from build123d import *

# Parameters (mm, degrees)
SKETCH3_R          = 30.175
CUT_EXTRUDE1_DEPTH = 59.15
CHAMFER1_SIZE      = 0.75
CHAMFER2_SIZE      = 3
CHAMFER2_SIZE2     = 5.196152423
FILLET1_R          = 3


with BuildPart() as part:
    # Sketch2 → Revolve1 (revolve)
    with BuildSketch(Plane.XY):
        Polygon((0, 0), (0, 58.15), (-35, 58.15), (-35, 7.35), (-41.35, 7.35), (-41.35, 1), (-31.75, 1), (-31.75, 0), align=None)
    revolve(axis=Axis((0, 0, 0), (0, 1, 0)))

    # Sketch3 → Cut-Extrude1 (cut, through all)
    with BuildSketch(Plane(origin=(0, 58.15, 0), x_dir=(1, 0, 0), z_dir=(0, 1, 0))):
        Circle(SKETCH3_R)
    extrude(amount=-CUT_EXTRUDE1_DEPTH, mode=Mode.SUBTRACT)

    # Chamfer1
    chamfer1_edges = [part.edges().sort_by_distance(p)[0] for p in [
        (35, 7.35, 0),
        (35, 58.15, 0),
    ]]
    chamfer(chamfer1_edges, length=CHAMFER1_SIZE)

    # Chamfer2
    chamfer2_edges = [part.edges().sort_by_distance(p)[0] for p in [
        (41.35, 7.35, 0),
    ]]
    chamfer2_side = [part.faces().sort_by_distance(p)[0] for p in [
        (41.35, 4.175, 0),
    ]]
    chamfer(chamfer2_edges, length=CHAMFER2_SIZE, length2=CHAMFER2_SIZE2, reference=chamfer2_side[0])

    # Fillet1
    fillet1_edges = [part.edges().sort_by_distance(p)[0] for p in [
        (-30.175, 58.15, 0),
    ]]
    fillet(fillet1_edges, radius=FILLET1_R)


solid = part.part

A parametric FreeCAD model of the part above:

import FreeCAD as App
import Part
import Sketcher

V = App.Vector


def edges_at(feature, points):
    """Names of the edges that pass closest to the given points."""
    edges = feature.Shape.Edges
    near = lambda p: min(range(len(edges)), key=lambda i: edges[i].distToShape(Part.Vertex(*p))[0])
    return sorted({f"Edge{near(p) + 1}" for p in points})


def add_polygon(sketch, points):
    """Adds a closed chain of lines whose ends are joined by coincident constraints."""
    first, n = sketch.GeometryCount, len(points)
    for a, b in zip(points, points[1:] + points[:1]):
        sketch.addGeometry(Part.LineSegment(App.Vector(*a, 0), App.Vector(*b, 0)), False)
    for i in range(n):
        sketch.addConstraint(Sketcher.Constraint("Coincident", first + i, 2, first + (i + 1) % n, 1))

doc = App.newDocument("Part")
params = doc.addObject("Spreadsheet::Sheet", "Params")
for row, (alias, value) in enumerate([
    ("sketch1_width", "35 mm"),
    ("sketch1_height", "1 mm"),
    ("sketch1_width2", "9.6 mm"),
    ("sketch1_height2", "50.8 mm"),
    ("sketch1_width3", "6.35 mm"),
    ("revolution_angle", "360 deg"),
    ("sketch2_diameter", "60.35 mm"),
    ("chamfer_size", "0.75 mm"),
    ("chamfer2_size", "3 mm"),
    ("chamfer2_size2", "5.196152 mm"),
    ("fillet_radius", "3 mm"),
], start=1):
    params.set(f"A{row}", alias)
    params.set(f"B{row}", "=" + value)
    params.setAlias(f"B{row}", alias)

body = doc.addObject("PartDesign::Body", "Body")

# Sketch on XY plane
sketch1 = body.newObject("Sketcher::SketchObject", "Sketch")
sketch1.AttachmentSupport = (doc.getObject("XY_Plane"), [""])
sketch1.MapMode = "FlatFace"
add_polygon(sketch1, [(0, 0), (0, 58.15), (-35, 58.15), (-35, 7.35), (-41.35, 7.35), (-41.35, 1), (-31.75, 1), (-31.75, 0)])  # lines 0-7
sketch1.addConstraint([
    Sketcher.Constraint("Vertical", 0),
    Sketcher.Constraint("Horizontal", 1),
    Sketcher.Constraint("Vertical", 2),
    Sketcher.Constraint("Horizontal", 3),
    Sketcher.Constraint("Vertical", 4),
    Sketcher.Constraint("Horizontal", 5),
    Sketcher.Constraint("Vertical", 6),
    Sketcher.Constraint("Horizontal", 7),
    Sketcher.Constraint("Coincident", 7, 2, -1, 1),
    Sketcher.Constraint("Equal", 3, 4),
    Sketcher.Constraint("DistanceX", 1, 2, 1, 1, 35.0),
    Sketcher.Constraint("DistanceY", 6, 2, 6, 1, 1.0),
    Sketcher.Constraint("DistanceX", 5, 1, 5, 2, 9.6),
    Sketcher.Constraint("DistanceY", 2, 2, 2, 1, 50.8),
    Sketcher.Constraint("DistanceX", 3, 2, 3, 1, 6.35),
])
sketch1.setExpression("Constraints[18]", "Params.sketch1_width")
sketch1.setExpression("Constraints[19]", "Params.sketch1_height")
sketch1.setExpression("Constraints[20]", "Params.sketch1_width2")
sketch1.setExpression("Constraints[21]", "Params.sketch1_height2")
sketch1.setExpression("Constraints[22]", "Params.sketch1_width3")
revolution = body.newObject("PartDesign::Revolution", "Revolution")
revolution.Profile = sketch1
revolution.ReferenceAxis = (sketch1, ["V_Axis"])
revolution.setExpression("Angle", "Params.revolution_angle")

# Sketch on XZ plane
sketch2 = body.newObject("Sketcher::SketchObject", "Sketch001")
sketch2.AttachmentSupport = (doc.getObject("XZ_Plane"), [""])
sketch2.MapMode = "FlatFace"
sketch2.AttachmentOffset = App.Placement(V(0, 0, -58.15), App.Rotation())
sketch2.addGeometry(Part.Circle(V(0, 0, 0), V(0, 0, 1), 30.175), False)
sketch2.addConstraint([
    Sketcher.Constraint("Coincident", 0, 3, -1, 1),
    Sketcher.Constraint("Diameter", 0, 60.35),
])
sketch2.setExpression("Constraints[1]", "Params.sketch2_diameter")
pocket1 = body.newObject("PartDesign::Pocket", "Pocket")
pocket1.Profile = sketch2
pocket1.Type = "ThroughAll"
pocket1.Reversed = True
doc.recompute()

chamfer = body.newObject("PartDesign::Chamfer", "Chamfer")
chamfer.Base = (pocket1, edges_at(pocket1, [(35, 7.35, 0), (35, 58.15, 0)]))
chamfer.setExpression("Size", "Params.chamfer_size")
doc.recompute()

chamfer2 = body.newObject("PartDesign::Chamfer", "Chamfer001")
chamfer2.Base = (chamfer, edges_at(chamfer, [(41.35, 7.35, 0)]))
chamfer2.ChamferType = "Two distances"
chamfer2.setExpression("Size", "Params.chamfer2_size")
chamfer2.setExpression("Size2", "Params.chamfer2_size2")
chamfer2.FlipDirection = True
doc.recompute()

fillet = body.newObject("PartDesign::Fillet", "Fillet")
fillet.Base = (chamfer2, edges_at(chamfer2, [(-30.175, 58.15, 0)]))
fillet.setExpression("Radius", "Params.fillet_radius")

doc.recompute()
